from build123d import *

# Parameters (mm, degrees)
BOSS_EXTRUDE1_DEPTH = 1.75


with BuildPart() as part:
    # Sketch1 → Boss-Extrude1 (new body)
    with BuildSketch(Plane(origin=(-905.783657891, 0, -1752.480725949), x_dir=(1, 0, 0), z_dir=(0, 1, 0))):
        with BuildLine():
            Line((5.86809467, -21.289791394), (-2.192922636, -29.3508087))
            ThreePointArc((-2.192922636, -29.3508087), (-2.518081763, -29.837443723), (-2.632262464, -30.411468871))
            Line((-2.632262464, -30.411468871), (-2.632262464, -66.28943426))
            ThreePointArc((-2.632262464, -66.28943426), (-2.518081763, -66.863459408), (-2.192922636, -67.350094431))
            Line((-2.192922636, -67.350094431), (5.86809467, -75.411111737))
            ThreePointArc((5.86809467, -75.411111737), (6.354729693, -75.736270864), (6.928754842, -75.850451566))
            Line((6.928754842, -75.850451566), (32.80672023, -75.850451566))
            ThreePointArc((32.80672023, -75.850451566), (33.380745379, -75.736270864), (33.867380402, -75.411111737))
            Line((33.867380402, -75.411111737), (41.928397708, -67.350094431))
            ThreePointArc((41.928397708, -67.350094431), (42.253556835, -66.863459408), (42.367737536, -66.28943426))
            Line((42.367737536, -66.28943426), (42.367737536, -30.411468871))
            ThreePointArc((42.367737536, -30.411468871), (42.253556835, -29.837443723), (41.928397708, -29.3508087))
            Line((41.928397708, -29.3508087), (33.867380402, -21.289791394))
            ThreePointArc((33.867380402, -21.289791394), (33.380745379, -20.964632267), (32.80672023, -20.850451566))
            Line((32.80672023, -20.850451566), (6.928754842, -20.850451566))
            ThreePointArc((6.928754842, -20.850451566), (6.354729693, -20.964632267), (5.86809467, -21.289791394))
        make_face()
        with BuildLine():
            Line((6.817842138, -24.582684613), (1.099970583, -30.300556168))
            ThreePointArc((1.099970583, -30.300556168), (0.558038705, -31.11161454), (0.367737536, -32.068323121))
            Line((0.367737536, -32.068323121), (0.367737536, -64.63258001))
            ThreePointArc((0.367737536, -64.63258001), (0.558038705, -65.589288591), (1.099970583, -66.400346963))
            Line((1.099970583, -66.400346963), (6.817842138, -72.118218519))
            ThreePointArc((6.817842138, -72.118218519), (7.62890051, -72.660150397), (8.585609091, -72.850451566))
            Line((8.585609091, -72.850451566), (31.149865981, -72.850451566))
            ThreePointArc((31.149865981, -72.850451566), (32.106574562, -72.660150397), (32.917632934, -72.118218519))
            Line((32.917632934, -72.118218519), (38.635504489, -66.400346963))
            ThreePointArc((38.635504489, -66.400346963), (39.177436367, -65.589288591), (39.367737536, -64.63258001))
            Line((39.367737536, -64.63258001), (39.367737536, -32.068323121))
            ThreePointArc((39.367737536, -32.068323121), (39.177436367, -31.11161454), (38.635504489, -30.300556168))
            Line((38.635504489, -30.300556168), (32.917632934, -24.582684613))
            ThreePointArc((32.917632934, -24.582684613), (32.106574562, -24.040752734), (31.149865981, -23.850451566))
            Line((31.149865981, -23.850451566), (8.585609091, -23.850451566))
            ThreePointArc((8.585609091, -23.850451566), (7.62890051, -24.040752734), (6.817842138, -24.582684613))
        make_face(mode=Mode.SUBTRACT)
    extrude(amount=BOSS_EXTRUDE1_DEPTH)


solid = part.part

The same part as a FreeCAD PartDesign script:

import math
import FreeCAD as App
import Part
import Sketcher

V = App.Vector

doc = App.newDocument("Part")
params = doc.addObject("Spreadsheet::Sheet", "Params")
for row, (alias, value) in enumerate([
    ("sketch1_radius", "1.5 mm"),
    ("sketch1_radius2", "2.5 mm"),
    ("sketch1_length", "11.4 mm"),
    ("pad1_length", "1.75 mm"),
], start=1):
    params.set(f"A{row}", alias)
    params.set(f"B{row}", "=" + value)
    params.setAlias(f"B{row}", alias)

body = doc.addObject("PartDesign::Body", "Body")

sketch1 = body.newObject("Sketcher::SketchObject", "Sketch")
sketch1.AttachmentSupport = (doc.getObject("XZ_Plane"), [""])
sketch1.MapMode = "FlatFace"
sketch1.addGeometry([
    Part.LineSegment(V(-899.9, -1731.2, 0), V(-908, -1723.1, 0)),
    Part.ArcOfCircle(Part.Circle(V(-906.9, -1722.1, 0), V(0, 0, 1), 1.5), math.radians(180), math.radians(225)),
    Part.LineSegment(V(-908.4, -1722.1, 0), V(-908.4, -1686.2, 0)),
    Part.ArcOfCircle(Part.Circle(V(-906.9, -1686.2, 0), V(0, 0, 1), 1.5), math.radians(135), math.radians(180)),
    Part.LineSegment(V(-908, -1685.1, 0), V(-899.9, -1677.1, 0)),
    Part.ArcOfCircle(Part.Circle(V(-898.9, -1678.1, 0), V(0, 0, 1), 1.5), math.radians(90), math.radians(135)),
    Part.LineSegment(V(-898.9, -1676.6, 0), V(-873, -1676.6, 0)),
    Part.ArcOfCircle(Part.Circle(V(-873, -1678.1, 0), V(0, 0, 1), 1.5), math.radians(45), math.radians(90)),
    Part.LineSegment(V(-871.9, -1677.1, 0), V(-863.9, -1685.1, 0)),
    Part.ArcOfCircle(Part.Circle(V(-864.9, -1686.2, 0), V(0, 0, 1), 1.5), math.radians(0), math.radians(45)),
    Part.LineSegment(V(-863.4, -1686.2, 0), V(-863.4, -1722.1, 0)),
    Part.ArcOfCircle(Part.Circle(V(-864.9, -1722.1, 0), V(0, 0, 1), 1.5), math.radians(-45), math.radians(0)),
    Part.LineSegment(V(-863.9, -1723.1, 0), V(-871.9, -1731.2, 0)),
    Part.ArcOfCircle(Part.Circle(V(-873, -1730.1, 0), V(0, 0, 1), 1.5), math.radians(-90), math.radians(-45)),
    Part.LineSegment(V(-873, -1731.6, 0), V(-898.9, -1731.6, 0)),
    Part.ArcOfCircle(Part.Circle(V(-898.9, -1730.1, 0), V(0, 0, 1), 1.5), math.radians(-135), math.radians(-90)),
    Part.LineSegment(V(-904.7, -1722.2, 0), V(-899, -1727.9, 0)),
    Part.ArcOfCircle(Part.Circle(V(-897.2, -1726.1, 0), V(0, 0, 1), 2.5), math.radians(-135), math.radians(-90)),
    Part.LineSegment(V(-897.2, -1728.6, 0), V(-874.6, -1728.6, 0)),
    Part.ArcOfCircle(Part.Circle(V(-874.6, -1726.1, 0), V(0, 0, 1), 2.5), math.radians(-90), math.radians(-45)),
    Part.LineSegment(V(-872.9, -1727.9, 0), V(-867.1, -1722.2, 0)),
    Part.ArcOfCircle(Part.Circle(V(-868.9, -1720.4, 0), V(0, 0, 1), 2.5), math.radians(-45), math.radians(0)),
    Part.LineSegment(V(-866.4, -1720.4, 0), V(-866.4, -1687.8, 0)),
    Part.ArcOfCircle(Part.Circle(V(-868.9, -1687.8, 0), V(0, 0, 1), 2.5), math.radians(0), math.radians(45)),
    Part.LineSegment(V(-867.1, -1686.1, 0), V(-872.9, -1680.4, 0)),
    Part.ArcOfCircle(Part.Circle(V(-874.6, -1682.1, 0), V(0, 0, 1), 2.5), math.radians(45), math.radians(90)),
    Part.LineSegment(V(-874.6, -1679.6, 0), V(-897.2, -1679.6, 0)),
    Part.ArcOfCircle(Part.Circle(V(-897.2, -1682.1, 0), V(0, 0, 1), 2.5), math.radians(90), math.radians(135)),
    Part.LineSegment(V(-899, -1680.4, 0), V(-904.7, -1686.1, 0)),
    Part.ArcOfCircle(Part.Circle(V(-902.9, -1687.8, 0), V(0, 0, 1), 2.5), math.radians(135), math.radians(180)),
    Part.LineSegment(V(-905.4, -1687.8, 0), V(-905.4, -1720.4, 0)),
    Part.ArcOfCircle(Part.Circle(V(-902.9, -1720.4, 0), V(0, 0, 1), 2.5), math.radians(-180), math.radians(-135)),
], False)
sketch1.addConstraint([
    Sketcher.Constraint("Tangent", 0, 2, 1, 2),
    Sketcher.Constraint("Tangent", 1, 1, 2, 1),
    Sketcher.Constraint("Tangent", 2, 2, 3, 2),
    Sketcher.Constraint("Tangent", 3, 1, 4, 1),
    Sketcher.Constraint("Tangent", 4, 2, 5, 2),
    Sketcher.Constraint("Tangent", 5, 1, 6, 1),
    Sketcher.Constraint("Tangent", 6, 2, 7, 2),
    Sketcher.Constraint("Tangent", 7, 1, 8, 1),
    Sketcher.Constraint("Tangent", 8, 2, 9, 2),
    Sketcher.Constraint("Tangent", 9, 1, 10, 1),
    Sketcher.Constraint("Tangent", 10, 2, 11, 2),
    Sketcher.Constraint("Tangent", 11, 1, 12, 1),
    Sketcher.Constraint("Tangent", 12, 2, 13, 2),
    Sketcher.Constraint("Tangent", 13, 1, 14, 1),
    Sketcher.Constraint("Tangent", 14, 2, 15, 2),
    Sketcher.Constraint("Tangent", 15, 1, 0, 1),
    Sketcher.Constraint("Tangent", 16, 2, 17, 1),
    Sketcher.Constraint("Tangent", 17, 2, 18, 1),
    Sketcher.Constraint("Tangent", 18, 2, 19, 1),
    Sketcher.Constraint("Tangent", 19, 2, 20, 1),
    Sketcher.Constraint("Tangent", 20, 2, 21, 1),
    Sketcher.Constraint("Tangent", 21, 2, 22, 1),
    Sketcher.Constraint("Tangent", 22, 2, 23, 1),
    Sketcher.Constraint("Tangent", 23, 2, 24, 1),
    Sketcher.Constraint("Tangent", 24, 2, 25, 1),
    Sketcher.Constraint("Tangent", 25, 2, 26, 1),
    Sketcher.Constraint("Tangent", 26, 2, 27, 1),
    Sketcher.Constraint("Tangent", 27, 2, 28, 1),
    Sketcher.Constraint("Tangent", 28, 2, 29, 1),
    Sketcher.Constraint("Tangent", 29, 2, 30, 1),
    Sketcher.Constraint("Tangent", 30, 2, 31, 1),
    Sketcher.Constraint("Tangent", 31, 2, 16, 1),
    Sketcher.Constraint("Vertical", 2),
    Sketcher.Constraint("Horizontal", 6),
    Sketcher.Constraint("Vertical", 10),
    Sketcher.Constraint("Horizontal", 14),
    Sketcher.Constraint("Horizontal", 18),
    Sketcher.Constraint("Vertical", 22),
    Sketcher.Constraint("Horizontal", 26),
    Sketcher.Constraint("Vertical", 30),
    Sketcher.Constraint("Equal", 1, 3),
    Sketcher.Constraint("Equal", 3, 5),
    Sketcher.Constraint("Equal", 5, 7),
    Sketcher.Constraint("Equal", 7, 9),
    Sketcher.Constraint("Equal", 9, 11),
    Sketcher.Constraint("Equal", 11, 13),
    Sketcher.Constraint("Equal", 13, 15),
    Sketcher.Constraint("Equal", 17, 19),
    Sketcher.Constraint("Equal", 19, 21),
    Sketcher.Constraint("Equal", 21, 23),
    Sketcher.Constraint("Equal", 23, 25),
    Sketcher.Constraint("Equal", 25, 27),
    Sketcher.Constraint("Equal", 27, 29),
    Sketcher.Constraint("Equal", 29, 31),
    Sketcher.Constraint("Perpendicular", 0, 4),
    Sketcher.Constraint("Perpendicular", 4, 8),
    Sketcher.Constraint("Perpendicular", 8, 12),
    Sketcher.Constraint("Perpendicular", 12, 16),
    Sketcher.Constraint("Perpendicular", 16, 20),
    Sketcher.Constraint("Perpendicular", 20, 24),
    Sketcher.Constraint("Perpendicular", 24, 28),
    Sketcher.Constraint("Horizontal", 3, 3, 9, 3),
    Sketcher.Constraint("Horizontal", 1, 3, 11, 3),
    Sketcher.Constraint("Horizontal", 23, 3, 29, 3),
    Sketcher.Constraint("Horizontal", 21, 3, 31, 3),
    Sketcher.Constraint("Horizontal", 4, 2, 7, 1),
    Sketcher.Constraint("Vertical", 7, 3, 13, 3),
    Sketcher.Constraint("Vertical", 19, 3, 25, 3),
    Sketcher.Constraint("Radius", 1, 1.5),
    Sketcher.Constraint("Radius", 17, 2.5),
    Sketcher.Constraint("DistanceX", 3, 3, 9, 3, 42.0),
    Sketcher.Constraint("DistanceY", 13, 3, 7, 3, 52.0),
    Sketcher.Constraint("DistanceY", 15, 3, 17, 3, 4.0),
    Sketcher.Constraint("DistanceX", 21, 3, 11, 3, 4.0),
    Sketcher.Constraint("DistanceY", 25, 3, 7, 3, 4.0),
    Sketcher.Constraint("DistanceX", 3, 3, 29, 3, 4.0),
    Sketcher.Constraint("Distance", 0, 11.4),
    Sketcher.Constraint("Distance", 16, 8.086292),
    Sketcher.Constraint("DistanceX", 1, 3, -1, 1, 906.91592),
    Sketcher.Constraint("DistanceY", 3, 3, -1, 1, 1686.191292),
])
sketch1.setExpression("Constraints[68]", "Params.sketch1_radius")
sketch1.setExpression("Constraints[69]", "Params.sketch1_radius2")
sketch1.setExpression("Constraints[76]", "Params.sketch1_length")
pad1 = body.newObject("PartDesign::Pad", "Pad")
pad1.Profile = sketch1
pad1.setExpression("Length", "Params.pad1_length")
pad1.Reversed = True

doc.recompute()
